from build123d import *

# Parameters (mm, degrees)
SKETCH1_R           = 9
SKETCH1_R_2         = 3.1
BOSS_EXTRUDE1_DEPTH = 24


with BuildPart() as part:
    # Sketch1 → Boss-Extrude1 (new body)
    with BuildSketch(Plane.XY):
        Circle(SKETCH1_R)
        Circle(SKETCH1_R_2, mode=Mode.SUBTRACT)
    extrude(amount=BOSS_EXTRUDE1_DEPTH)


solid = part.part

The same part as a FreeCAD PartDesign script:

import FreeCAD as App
import Part
import Sketcher
from FreeCAD import Vector

doc = App.newDocument("Part")
params = doc.addObject("Spreadsheet::Sheet", "Params")
for row, (alias, value) in enumerate([
    ("sketch1_diameter", "18 mm"),
    ("sketch1_diameter2", "6.2 mm"),
    ("pad1_length", "24 mm"),
], start=1):
    params.set(f"A{row}", alias)
    params.set(f"B{row}", "=" + value)
    params.setAlias(f"B{row}", alias)

body = doc.addObject("PartDesign::Body", "Body")

sketch1 = doc.addObject("Sketcher::SketchObject", "Sketch")
body.addObject(sketch1)
sketch1.AttachmentSupport = (doc.XY_Plane, [""])
sketch1.MapMode = "FlatFace"
sketch1.addGeometry([
    Part.Circle(Vector(0, 0, 0), Vector(0, 0, 1), 9),
    Part.Circle(Vector(0, 0, 0), Vector(0, 0, 1), 3.1),
], False)
sketch1.addConstraint([
    Sketcher.Constraint("Coincident", 0, 3, -1, 1),
    Sketcher.Constraint("Coincident", 1, 3, -1, 1),
    Sketcher.Constraint("Diameter", 0, 18.0),
    Sketcher.Constraint("Diameter", 1, 6.2),
])
sketch1.setExpression("Constraints[2]", "Params.sketch1_diameter")
sketch1.setExpression("Constraints[3]", "Params.sketch1_diameter2")
pad1 = doc.addObject("PartDesign::Pad", "Pad")
body.addObject(pad1)
pad1.Profile = sketch1
pad1.setExpression("Length", "Params.pad1_length")

doc.recompute()
